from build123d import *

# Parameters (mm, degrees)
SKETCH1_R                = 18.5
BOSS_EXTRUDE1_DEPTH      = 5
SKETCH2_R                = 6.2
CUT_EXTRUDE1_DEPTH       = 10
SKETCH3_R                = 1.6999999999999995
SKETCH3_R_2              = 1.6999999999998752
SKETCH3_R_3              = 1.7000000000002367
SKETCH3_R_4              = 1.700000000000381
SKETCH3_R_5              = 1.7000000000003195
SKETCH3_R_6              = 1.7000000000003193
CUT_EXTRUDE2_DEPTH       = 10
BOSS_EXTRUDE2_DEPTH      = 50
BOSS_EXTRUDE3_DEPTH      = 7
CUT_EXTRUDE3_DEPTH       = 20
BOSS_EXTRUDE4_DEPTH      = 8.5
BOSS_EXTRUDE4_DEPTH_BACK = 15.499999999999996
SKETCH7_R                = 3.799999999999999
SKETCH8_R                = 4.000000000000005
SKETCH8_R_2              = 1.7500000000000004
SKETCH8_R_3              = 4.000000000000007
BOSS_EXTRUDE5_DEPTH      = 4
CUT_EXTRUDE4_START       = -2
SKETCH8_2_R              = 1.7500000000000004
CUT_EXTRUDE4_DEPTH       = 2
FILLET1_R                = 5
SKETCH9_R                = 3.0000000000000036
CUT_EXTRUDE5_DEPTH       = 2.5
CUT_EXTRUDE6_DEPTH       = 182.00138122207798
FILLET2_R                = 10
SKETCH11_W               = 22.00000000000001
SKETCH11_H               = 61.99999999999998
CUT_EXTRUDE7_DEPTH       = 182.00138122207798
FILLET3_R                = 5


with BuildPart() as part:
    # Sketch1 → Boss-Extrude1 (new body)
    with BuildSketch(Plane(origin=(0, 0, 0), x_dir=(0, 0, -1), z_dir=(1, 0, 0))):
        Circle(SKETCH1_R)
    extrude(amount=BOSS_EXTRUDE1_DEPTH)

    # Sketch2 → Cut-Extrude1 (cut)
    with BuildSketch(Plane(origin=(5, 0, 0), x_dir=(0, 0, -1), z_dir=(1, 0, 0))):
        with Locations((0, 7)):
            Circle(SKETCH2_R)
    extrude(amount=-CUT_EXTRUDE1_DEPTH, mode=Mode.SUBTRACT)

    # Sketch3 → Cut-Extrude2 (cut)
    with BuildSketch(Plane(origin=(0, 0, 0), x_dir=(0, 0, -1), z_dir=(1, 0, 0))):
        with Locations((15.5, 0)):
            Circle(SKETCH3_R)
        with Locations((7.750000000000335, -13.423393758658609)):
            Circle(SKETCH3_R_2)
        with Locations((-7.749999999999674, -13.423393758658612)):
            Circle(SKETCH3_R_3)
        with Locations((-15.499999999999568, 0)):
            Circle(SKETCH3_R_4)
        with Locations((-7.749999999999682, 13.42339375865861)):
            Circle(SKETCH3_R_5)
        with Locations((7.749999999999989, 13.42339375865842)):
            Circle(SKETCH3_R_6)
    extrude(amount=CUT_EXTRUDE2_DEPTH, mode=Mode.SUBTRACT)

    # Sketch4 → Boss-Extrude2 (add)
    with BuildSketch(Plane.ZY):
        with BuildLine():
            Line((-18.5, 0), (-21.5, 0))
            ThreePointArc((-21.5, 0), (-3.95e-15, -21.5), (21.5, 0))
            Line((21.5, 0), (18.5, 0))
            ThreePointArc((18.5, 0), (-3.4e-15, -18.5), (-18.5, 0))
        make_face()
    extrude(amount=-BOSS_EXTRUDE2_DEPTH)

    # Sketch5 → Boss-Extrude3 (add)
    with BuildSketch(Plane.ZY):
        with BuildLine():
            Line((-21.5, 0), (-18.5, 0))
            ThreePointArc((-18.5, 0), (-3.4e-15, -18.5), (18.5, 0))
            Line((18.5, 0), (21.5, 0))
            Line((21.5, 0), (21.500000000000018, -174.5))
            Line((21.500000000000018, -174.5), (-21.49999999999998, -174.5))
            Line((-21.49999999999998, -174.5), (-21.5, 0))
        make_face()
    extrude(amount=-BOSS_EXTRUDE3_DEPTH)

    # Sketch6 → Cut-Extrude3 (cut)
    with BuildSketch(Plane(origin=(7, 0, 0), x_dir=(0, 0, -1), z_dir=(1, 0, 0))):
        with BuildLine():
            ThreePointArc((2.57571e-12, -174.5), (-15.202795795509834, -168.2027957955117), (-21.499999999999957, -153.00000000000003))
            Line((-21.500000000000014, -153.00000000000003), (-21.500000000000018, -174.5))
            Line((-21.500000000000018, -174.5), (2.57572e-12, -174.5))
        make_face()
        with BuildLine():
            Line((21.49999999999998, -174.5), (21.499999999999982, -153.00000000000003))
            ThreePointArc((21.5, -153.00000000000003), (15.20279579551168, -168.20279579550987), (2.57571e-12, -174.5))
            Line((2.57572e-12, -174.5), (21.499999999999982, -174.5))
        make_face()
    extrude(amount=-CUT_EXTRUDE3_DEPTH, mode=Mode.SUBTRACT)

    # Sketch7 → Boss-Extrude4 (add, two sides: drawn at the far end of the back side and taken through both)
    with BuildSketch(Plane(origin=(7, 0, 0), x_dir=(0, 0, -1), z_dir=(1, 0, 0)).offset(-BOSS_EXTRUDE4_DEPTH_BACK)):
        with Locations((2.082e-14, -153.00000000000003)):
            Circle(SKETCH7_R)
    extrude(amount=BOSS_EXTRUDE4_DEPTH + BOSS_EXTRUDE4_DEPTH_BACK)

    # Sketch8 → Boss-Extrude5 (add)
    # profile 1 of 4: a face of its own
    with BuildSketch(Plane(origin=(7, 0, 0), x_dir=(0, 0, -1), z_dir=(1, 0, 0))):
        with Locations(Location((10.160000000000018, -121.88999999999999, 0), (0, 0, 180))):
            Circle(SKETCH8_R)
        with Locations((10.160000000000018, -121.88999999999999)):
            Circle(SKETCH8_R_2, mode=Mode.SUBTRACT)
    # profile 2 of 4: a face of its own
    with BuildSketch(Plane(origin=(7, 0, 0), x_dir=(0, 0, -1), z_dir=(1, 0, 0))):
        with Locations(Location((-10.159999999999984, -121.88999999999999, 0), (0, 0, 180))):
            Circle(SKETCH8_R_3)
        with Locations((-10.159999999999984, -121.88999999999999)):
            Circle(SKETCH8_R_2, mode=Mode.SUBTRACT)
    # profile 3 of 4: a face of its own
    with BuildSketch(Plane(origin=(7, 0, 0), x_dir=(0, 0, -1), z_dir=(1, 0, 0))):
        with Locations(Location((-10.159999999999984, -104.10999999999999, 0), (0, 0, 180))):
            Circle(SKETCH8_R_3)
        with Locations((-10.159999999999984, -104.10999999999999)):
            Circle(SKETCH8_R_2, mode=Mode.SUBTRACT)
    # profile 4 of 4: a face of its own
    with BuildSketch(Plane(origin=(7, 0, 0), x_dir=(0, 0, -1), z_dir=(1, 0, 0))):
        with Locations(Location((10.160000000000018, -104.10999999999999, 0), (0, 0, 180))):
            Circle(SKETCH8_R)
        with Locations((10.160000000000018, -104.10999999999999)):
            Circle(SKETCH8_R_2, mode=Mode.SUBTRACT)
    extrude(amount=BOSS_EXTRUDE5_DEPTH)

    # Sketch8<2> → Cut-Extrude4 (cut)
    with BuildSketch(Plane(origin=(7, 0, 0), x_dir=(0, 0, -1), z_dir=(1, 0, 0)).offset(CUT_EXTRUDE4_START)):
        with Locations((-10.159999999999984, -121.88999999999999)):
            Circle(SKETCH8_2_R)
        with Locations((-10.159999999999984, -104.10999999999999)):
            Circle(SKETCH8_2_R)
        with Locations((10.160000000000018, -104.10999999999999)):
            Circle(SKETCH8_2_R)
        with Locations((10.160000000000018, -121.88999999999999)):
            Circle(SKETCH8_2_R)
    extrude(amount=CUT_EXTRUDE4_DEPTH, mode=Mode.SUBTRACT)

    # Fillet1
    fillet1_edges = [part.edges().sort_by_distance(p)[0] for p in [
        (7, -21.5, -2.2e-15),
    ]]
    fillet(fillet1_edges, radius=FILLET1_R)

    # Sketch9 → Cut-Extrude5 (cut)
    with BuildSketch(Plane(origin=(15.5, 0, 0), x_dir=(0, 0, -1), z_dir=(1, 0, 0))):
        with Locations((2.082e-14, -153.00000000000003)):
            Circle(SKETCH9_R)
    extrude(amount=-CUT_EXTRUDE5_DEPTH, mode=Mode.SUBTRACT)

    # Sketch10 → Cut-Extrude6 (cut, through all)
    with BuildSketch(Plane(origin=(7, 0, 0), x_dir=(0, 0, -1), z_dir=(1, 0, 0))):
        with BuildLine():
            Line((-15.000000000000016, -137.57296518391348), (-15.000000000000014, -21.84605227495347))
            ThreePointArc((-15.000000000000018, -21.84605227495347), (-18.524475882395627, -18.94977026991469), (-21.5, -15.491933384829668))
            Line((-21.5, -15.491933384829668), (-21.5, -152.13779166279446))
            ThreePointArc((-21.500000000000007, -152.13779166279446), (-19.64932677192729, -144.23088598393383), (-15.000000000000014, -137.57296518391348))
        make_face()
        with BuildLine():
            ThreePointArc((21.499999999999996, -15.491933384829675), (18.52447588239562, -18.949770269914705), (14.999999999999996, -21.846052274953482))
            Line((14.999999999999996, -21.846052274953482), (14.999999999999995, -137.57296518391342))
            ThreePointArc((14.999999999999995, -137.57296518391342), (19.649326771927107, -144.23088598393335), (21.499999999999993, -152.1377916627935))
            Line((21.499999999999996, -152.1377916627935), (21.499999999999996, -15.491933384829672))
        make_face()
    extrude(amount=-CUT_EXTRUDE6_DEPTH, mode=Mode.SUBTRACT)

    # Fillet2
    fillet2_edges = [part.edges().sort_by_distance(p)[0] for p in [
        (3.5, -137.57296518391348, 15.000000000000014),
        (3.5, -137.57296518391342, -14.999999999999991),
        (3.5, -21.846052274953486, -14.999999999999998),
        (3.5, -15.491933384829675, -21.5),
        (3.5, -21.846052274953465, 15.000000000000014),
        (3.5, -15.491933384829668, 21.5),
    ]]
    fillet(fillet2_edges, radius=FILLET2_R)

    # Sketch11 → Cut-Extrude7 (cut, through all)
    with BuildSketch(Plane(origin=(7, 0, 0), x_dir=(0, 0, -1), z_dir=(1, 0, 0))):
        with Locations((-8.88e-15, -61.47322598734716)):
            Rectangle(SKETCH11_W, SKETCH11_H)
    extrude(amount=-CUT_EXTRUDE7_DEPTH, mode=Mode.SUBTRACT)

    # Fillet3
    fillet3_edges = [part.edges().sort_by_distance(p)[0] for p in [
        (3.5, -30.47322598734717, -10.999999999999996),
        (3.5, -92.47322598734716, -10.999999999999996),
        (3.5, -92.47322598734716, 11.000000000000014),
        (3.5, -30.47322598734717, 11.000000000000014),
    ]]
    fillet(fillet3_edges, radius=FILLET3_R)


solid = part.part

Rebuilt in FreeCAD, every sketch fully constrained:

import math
import FreeCAD as App
import Part
import Sketcher
from FreeCAD import Vector


def edges_at(feature, points):
    """Names of the edges that pass closest to the given points."""
    edges = feature.Shape.Edges
    near = lambda p: min(range(len(edges)), key=lambda i: edges[i].distToShape(Part.Vertex(*p))[0])
    return sorted({f"Edge{near(p) + 1}" for p in points})


def add_polygon(sketch, points):
    """Adds a closed chain of lines whose ends are joined by coincident constraints."""
    first, n = sketch.GeometryCount, len(points)
    for a, b in zip(points, points[1:] + points[:1]):
        sketch.addGeometry(Part.LineSegment(App.Vector(*a, 0), App.Vector(*b, 0)), False)
    for i in range(n):
        sketch.addConstraint(Sketcher.Constraint("Coincident", first + i, 2, first + (i + 1) % n, 1))

doc = App.newDocument("Part")
body = doc.addObject("PartDesign::Body", "Body")

# Sketch on YZ plane
sketch1 = doc.addObject("Sketcher::SketchObject", "Sketch")
body.addObject(sketch1)
sketch1.AttachmentSupport = (doc.YZ_Plane, [""])
sketch1.MapMode = "FlatFace"
sketch1.addGeometry(Part.Circle(Vector(0, 0, 0), Vector(0, 0, 1), 18), False)
sketch1.addConstraint([
    Sketcher.Constraint("Coincident", 0, 3, -1, 1),
    Sketcher.Constraint("Diameter", 0, 37.0),
])
pad1 = doc.addObject("PartDesign::Pad", "Pad")
body.addObject(pad1)
pad1.Profile = sketch1
pad1.Length = 5

# Sketch on YZ plane
sketch2 = doc.addObject("Sketcher::SketchObject", "Sketch001")
body.addObject(sketch2)
sketch2.AttachmentSupport = (doc.YZ_Plane, [""])
sketch2.MapMode = "FlatFace"
sketch2.AttachmentOffset = App.Placement(Vector(0, 0, 5), App.Rotation())
sketch2.addGeometry(Part.Circle(Vector(7, 0, 0), Vector(0, 0, 1), 6), False)
sketch2.addConstraint([
    Sketcher.Constraint("PointOnObject", 0, 3, -1),
    Sketcher.Constraint("Diameter", 0, 12.4),
    Sketcher.Constraint("DistanceX", -1, 1, 0, 3, 7.0),
])
pocket1 = doc.addObject("PartDesign::Pocket", "Pocket")
body.addObject(pocket1)
pocket1.Profile = sketch2
pocket1.Length = 10

# Sketch on YZ plane
sketch3 = doc.addObject("Sketcher::SketchObject", "Sketch002")
body.addObject(sketch3)
sketch3.AttachmentSupport = (doc.YZ_Plane, [""])
sketch3.MapMode = "FlatFace"
sketch3.addGeometry([
    Part.Circle(Vector(0, -15.5, 0), Vector(0, 0, 1), 1.7),  # 0
    Part.Circle(Vector(-13.4, -7.8, 0), Vector(0, 0, 1), 1.7),  # 1
    Part.Circle(Vector(-13.4, 7.8, 0), Vector(0, 0, 1), 1.7),  # 2
    Part.Circle(Vector(0, 15.5, 0), Vector(0, 0, 1), 1.7),  # 3
    Part.Circle(Vector(13.4, 7.8, 0), Vector(0, 0, 1), 1.7),  # 4
    Part.Circle(Vector(13.4, -7.8, 0), Vector(0, 0, 1), 1.7),  # 5
], False)
sketch3.addConstraint([
    Sketcher.Constraint("Equal", 0, 1),
    Sketcher.Constraint("Equal", 1, 2),
    Sketcher.Constraint("Equal", 2, 3),
    Sketcher.Constraint("Equal", 3, 4),
    Sketcher.Constraint("Equal", 4, 5),
    Sketcher.Constraint("Symmetric", 0, 3, 3, 3, -1, 1),
    Sketcher.Constraint("Symmetric", 1, 3, 4, 3, -1, 1),
    Sketcher.Constraint("Symmetric", 2, 3, 5, 3, -1, 1),
    Sketcher.Constraint("Symmetric", 2, 3, 4, 3, -2),
    Sketcher.Constraint("PointOnObject", 0, 3, -2),
    Sketcher.Constraint("Diameter", 0, 3.4),
    Sketcher.Constraint("DistanceY", 0, 3, 3, 3, 31.0),
    Sketcher.Constraint("DistanceY", 1, 3, 2, 3, 15.5),
    Sketcher.Constraint("DistanceX", 1, 3, -1, 1, 13.423394),
])
pocket2 = doc.addObject("PartDesign::Pocket", "Pocket001")
body.addObject(pocket2)
pocket2.Profile = sketch3
pocket2.Length = 10
pocket2.Reversed = True

# Sketch on YZ plane
sketch4 = doc.addObject("Sketcher::SketchObject", "Sketch003")
body.addObject(sketch4)
sketch4.AttachmentSupport = (doc.YZ_Plane, [""])
sketch4.MapMode = "FlatFace"
sketch4.addGeometry([
    Part.LineSegment(Vector(0, -18.5, 0), Vector(0, -21.5, 0)),
    Part.ArcOfCircle(Part.Circle(Vector(0, 0, 0), Vector(0, 0, 1), 21.5), math.radians(90), math.radians(270)),
    Part.LineSegment(Vector(0, 21.5, 0), Vector(0, 18.5, 0)),
    Part.ArcOfCircle(Part.Circle(Vector(0, 0, 0), Vector(0, 0, 1), 18.5), math.radians(90), math.radians(270)),
], False)
sketch4.addConstraint([
    Sketcher.Constraint("Coincident", 0, 2, 1, 2),
    Sketcher.Constraint("Coincident", 1, 1, 2, 1),
    Sketcher.Constraint("Coincident", 2, 2, 3, 1),
    Sketcher.Constraint("Coincident", 3, 2, 0, 1),
    Sketcher.Constraint("Vertical", 0),
    Sketcher.Constraint("Vertical", 2),
    Sketcher.Constraint("Coincident", 1, 3, -1, 1),
    Sketcher.Constraint("Coincident", 3, 3, -1, 1),
    Sketcher.Constraint("PointOnObject", 0, 2, -2),
    Sketcher.Constraint("PointOnObject", 1, 1, -2),
    Sketcher.Constraint("Radius", 1, 21.5),
    Sketcher.Constraint("Radius", 3, 18.5),
])
pad2 = doc.addObject("PartDesign::Pad", "Pad001")
body.addObject(pad2)
pad2.Profile = sketch4
pad2.Length = 50

# Sketch on YZ plane
sketch5 = doc.addObject("Sketcher::SketchObject", "Sketch004")
body.addObject(sketch5)
sketch5.AttachmentSupport = (doc.YZ_Plane, [""])
sketch5.MapMode = "FlatFace"
sketch5.addGeometry([
    Part.LineSegment(Vector(0, -18.5, 0), Vector(0, -21.5, 0)),  # 0
    Part.LineSegment(Vector(0, -21.5, 0), Vector(-174.5, -21.5, 0)),  # 1
    Part.LineSegment(Vector(-174.5, -21.5, 0), Vector(-174.5, 21.5, 0)),  # 2
    Part.LineSegment(Vector(-174.5, 21.5, 0), Vector(0, 21.5, 0)),  # 3
    Part.LineSegment(Vector(0, 21.5, 0), Vector(0, 18.5, 0)),  # 4
    Part.ArcOfCircle(Part.Circle(Vector(0, 0, 0), Vector(0, 0, 1), 18.5), math.radians(90), math.radians(270)),  # 5
], False)
sketch5.addConstraint([
    Sketcher.Constraint("Coincident", 0, 2, 1, 1),
    Sketcher.Constraint("Coincident", 1, 2, 2, 1),
    Sketcher.Constraint("Coincident", 2, 2, 3, 1),
    Sketcher.Constraint("Coincident", 3, 2, 4, 1),
    Sketcher.Constraint("Coincident", 4, 2, 5, 1),
    Sketcher.Constraint("Coincident", 5, 2, 0, 1),
    Sketcher.Constraint("Vertical", 0),
    Sketcher.Constraint("Horizontal", 1),
    Sketcher.Constraint("Vertical", 2),
    Sketcher.Constraint("Horizontal", 3),
    Sketcher.Constraint("Vertical", 4),
    Sketcher.Constraint("Coincident", 5, 3, -1, 1),
    Sketcher.Constraint("Symmetric", 0, 2, 3, 2, -1, 1),
    Sketcher.Constraint("PointOnObject", 0, 2, -2),
    Sketcher.Constraint("Radius", 5, 18.5),
    Sketcher.Constraint("DistanceY", 0, 2, 0, 1, 3.0),
    Sketcher.Constraint("DistanceX", 1, 2, 1, 1, 174.5),
])
pad3 = doc.addObject("PartDesign::Pad", "Pad002")
body.addObject(pad3)
pad3.Profile = sketch5
pad3.Length = 7

# Sketch on YZ plane
sketch6 = doc.addObject("Sketcher::SketchObject", "Sketch005")
body.addObject(sketch6)
sketch6.AttachmentSupport = (doc.YZ_Plane, [""])
sketch6.MapMode = "FlatFace"
sketch6.AttachmentOffset = App.Placement(Vector(0, 0, 7), App.Rotation())
sketch6.addGeometry([
    Part.ArcOfCircle(Part.Circle(Vector(-153, 0, 0), Vector(0, 0, 1), 22), math.radians(90), math.radians(180)),  # 0
    Part.LineSegment(Vector(-153, 22, 0), Vector(-174, 22, 0)),  # 1
    Part.LineSegment(Vector(-174, 22, 0), Vector(-174, 0, 0)),  # 2
    Part.LineSegment(Vector(-174, -22, 0), Vector(-153, -22, 0)),  # 3
    Part.ArcOfCircle(Part.Circle(Vector(-153, 0, 0), Vector(0, 0, 1), 22), math.radians(180), math.radians(270)),  # 4
    Part.LineSegment(Vector(-174, 0, 0), Vector(-174, -22, 0)),  # 5
], False)
sketch6.addConstraint([
    Sketcher.Constraint("Tangent", 0, 1, 1, 1),
    Sketcher.Constraint("Coincident", 1, 2, 2, 1),
    Sketcher.Constraint("Tangent", 2, 2, 0, 2),
    Sketcher.Constraint("Tangent", 3, 2, 4, 2),
    Sketcher.Constraint("Tangent", 4, 1, 5, 1),
    Sketcher.Constraint("Coincident", 5, 2, 3, 1),
    Sketcher.Constraint("Horizontal", 1),
    Sketcher.Constraint("Vertical", 2),
    Sketcher.Constraint("Horizontal", 3),
    Sketcher.Constraint("Vertical", 5),
    Sketcher.Constraint("Coincident", 4, 3, 0, 3),
    Sketcher.Constraint("Equal", 0, 4),
    Sketcher.Constraint("PointOnObject", 0, 3, -1),
    Sketcher.Constraint("Radius", 0, 21.5),
    Sketcher.Constraint("DistanceX", 0, 3, -1, 1, 153.0),
])
pocket3 = doc.addObject("PartDesign::Pocket", "Pocket002")
body.addObject(pocket3)
pocket3.Profile = sketch6
pocket3.Length = 20

# Sketch on YZ plane
sketch7 = doc.addObject("Sketcher::SketchObject", "Sketch006")
body.addObject(sketch7)
sketch7.AttachmentSupport = (doc.YZ_Plane, [""])
sketch7.MapMode = "FlatFace"
sketch7.AttachmentOffset = App.Placement(Vector(0, 0, 7), App.Rotation())
sketch7.addGeometry(Part.Circle(Vector(-153, 0, 0), Vector(0, 0, 1), 3.8), False)
sketch7.addConstraint([
    Sketcher.Constraint("PointOnObject", 0, 3, -1),
    Sketcher.Constraint("Diameter", 0, 7.6),
    Sketcher.Constraint("DistanceX", 0, 3, -1, 1, 153.0),
])
pad4 = doc.addObject("PartDesign::Pad", "Pad003")
body.addObject(pad4)
pad4.Profile = sketch7
pad4.Type = "TwoLengths"
pad4.Length = 8.5
pad4.Length2 = 15.5

# Sketch on YZ plane
sketch8 = doc.addObject("Sketcher::SketchObject", "Sketch007")
body.addObject(sketch8)
sketch8.AttachmentSupport = (doc.YZ_Plane, [""])
sketch8.MapMode = "FlatFace"
sketch8.AttachmentOffset = App.Placement(Vector(0, 0, 7), App.Rotation())
sketch8.addGeometry([
    Part.Circle(Vector(-121.9, -10.2, 0), Vector(0, 0, 1), 4),  # 0
    Part.Circle(Vector(-121.9, -10.2, 0), Vector(0, 0, 1), 1.8),  # 1
    Part.Circle(Vector(-121.9, 10.2, 0), Vector(0, 0, 1), 4),  # 2
    Part.Circle(Vector(-121.9, 10.2, 0), Vector(0, 0, 1), 1.8),  # 3
    Part.Circle(Vector(-104.1, 10.2, 0), Vector(0, 0, 1), 4),  # 4
    Part.Circle(Vector(-104.1, 10.2, 0), Vector(0, 0, 1), 1.8),  # 5
    Part.Circle(Vector(-104.1, -10.2, 0), Vector(0, 0, 1), 4),  # 6
    Part.Circle(Vector(-104.1, -10.2, 0), Vector(0, 0, 1), 1.8),  # 7
], False)
sketch8.addConstraint([
    Sketcher.Constraint("Coincident", 1, 3, 0, 3),
    Sketcher.Constraint("Coincident", 3, 3, 2, 3),
    Sketcher.Constraint("Coincident", 5, 3, 4, 3),
    Sketcher.Constraint("Coincident", 7, 3, 6, 3),
    Sketcher.Constraint("Equal", 0, 2),
    Sketcher.Constraint("Equal", 1, 3),
    Sketcher.Constraint("Equal", 2, 4),
    Sketcher.Constraint("Equal", 3, 5),
    Sketcher.Constraint("Equal", 4, 6),
    Sketcher.Constraint("Equal", 5, 7),
    Sketcher.Constraint("Symmetric", 0, 3, 2, 3, -1),
    Sketcher.Constraint("Symmetric", 4, 3, 6, 3, -1),
    Sketcher.Constraint("Horizontal", 3, 3, 4, 3),
    Sketcher.Constraint("Diameter", 0, 8.0),
    Sketcher.Constraint("Diameter", 1, 3.5),
    Sketcher.Constraint("DistanceX", 0, 3, -1, 1, 121.89),
    Sketcher.Constraint("DistanceY", 0, 3, -1, 1, 10.16),
    Sketcher.Constraint("DistanceX", 4, 3, -1, 1, 104.11),
])
pad5 = doc.addObject("PartDesign::Pad", "Pad004")
body.addObject(pad5)
pad5.Profile = sketch8
pad5.Length = 4

# Sketch on YZ plane
sketch9 = doc.addObject("Sketcher::SketchObject", "Sketch008")
body.addObject(sketch9)
sketch9.AttachmentSupport = (doc.YZ_Plane, [""])
sketch9.MapMode = "FlatFace"
sketch9.AttachmentOffset = App.Placement(Vector(0, 0, 5), App.Rotation())
sketch9.addGeometry([
    Part.Circle(Vector(-121.9, 10.2, 0), Vector(0, 0, 1), 1.8),
    Part.Circle(Vector(-104.1, 10.2, 0), Vector(0, 0, 1), 1.8),
    Part.Circle(Vector(-104.1, -10.2, 0), Vector(0, 0, 1), 1.8),
    Part.Circle(Vector(-121.9, -10.2, 0), Vector(0, 0, 1), 1.8),
], False)
sketch9.addConstraint([
    Sketcher.Constraint("Equal", 0, 1),
    Sketcher.Constraint("Equal", 1, 2),
    Sketcher.Constraint("Equal", 2, 3),
    Sketcher.Constraint("Symmetric", 1, 3, 2, 3, -1),
    Sketcher.Constraint("Symmetric", 0, 3, 3, 3, -1),
    Sketcher.Constraint("Horizontal", 0, 3, 1, 3),
    Sketcher.Constraint("Diameter", 0, 3.5),
    Sketcher.Constraint("DistanceX", 0, 3, -1, 1, 121.89),
    Sketcher.Constraint("DistanceY", -1, 1, 0, 3, 10.16),
    Sketcher.Constraint("DistanceX", 1, 3, -1, 1, 104.11),
])
pocket4 = doc.addObject("PartDesign::Pocket", "Pocket003")
body.addObject(pocket4)
pocket4.Profile = sketch9
pocket4.Length = 2
pocket4.Reversed = True
doc.recompute()

fillet = doc.addObject("PartDesign::Fillet", "Fillet")
body.addObject(fillet)
fillet.Base = (pocket4, edges_at(pocket4, [(7, -21.5, 0)]))
fillet.Radius = 5

# Sketch on YZ plane
sketch10 = doc.addObject("Sketcher::SketchObject", "Sketch009")
body.addObject(sketch10)
sketch10.AttachmentSupport = (doc.YZ_Plane, [""])
sketch10.MapMode = "FlatFace"
sketch10.AttachmentOffset = App.Placement(Vector(0, 0, 15.5), App.Rotation())
sketch10.addGeometry(Part.Circle(Vector(-153, 0, 0), Vector(0, 0, 1), 3), False)
sketch10.addConstraint([
    Sketcher.Constraint("PointOnObject", 0, 3, -1),
    Sketcher.Constraint("Diameter", 0, 6.0),
    Sketcher.Constraint("DistanceX", 0, 3, -1, 1, 153.0),
])
pocket5 = doc.addObject("PartDesign::Pocket", "Pocket004")
body.addObject(pocket5)
pocket5.Profile = sketch10
pocket5.Length = 2.5

# Sketch on YZ plane
sketch11 = doc.addObject("Sketcher::SketchObject", "Sketch010")
body.addObject(sketch11)
sketch11.AttachmentSupport = (doc.YZ_Plane, [""])
sketch11.MapMode = "FlatFace"
sketch11.AttachmentOffset = App.Placement(Vector(0, 0, 7), App.Rotation())
sketch11.addGeometry([
    Part.LineSegment(Vector(-138, 15, 0), Vector(-22, 15, 0)),  # 0
    Part.ArcOfCircle(Part.Circle(Vector(0, 0, 0), Vector(0, 0, 1), 26), math.radians(125.77), math.radians(145.53)),  # 1
    Part.LineSegment(Vector(-15, 22, 0), Vector(-152, 22, 0)),  # 2
    Part.ArcOfCircle(Part.Circle(Vector(-153, 0, 0), Vector(0, 0, 1), 22), math.radians(44), math.radians(88)),  # 3
    Part.ArcOfCircle(Part.Circle(Vector(0, 0, 0), Vector(0, 0, 1), 26), math.radians(-145.53), math.radians(-125.77)),  # 4
    Part.LineSegment(Vector(-22, -15, 0), Vector(-138, -15, 0)),  # 5
    Part.ArcOfCircle(Part.Circle(Vector(-153, 0, 0), Vector(0, 0, 1), 22), math.radians(-88), math.radians(-44)),  # 6
    Part.LineSegment(Vector(-152, -22, 0), Vector(-15, -22, 0)),  # 7
], False)
sketch11.addConstraint([
    Sketcher.Constraint("Coincident", 0, 2, 1, 2),
    Sketcher.Constraint("Coincident", 1, 1, 2, 1),
    Sketcher.Constraint("Coincident", 2, 2, 3, 2),
    Sketcher.Constraint("Coincident", 3, 1, 0, 1),
    Sketcher.Constraint("Coincident", 4, 1, 5, 1),
    Sketcher.Constraint("Coincident", 5, 2, 6, 2),
    Sketcher.Constraint("Coincident", 6, 1, 7, 1),
    Sketcher.Constraint("Coincident", 7, 2, 4, 2),
    Sketcher.Constraint("Horizontal", 0),
    Sketcher.Constraint("Horizontal", 2),
    Sketcher.Constraint("Horizontal", 5),
    Sketcher.Constraint("Horizontal", 7),
    Sketcher.Constraint("Coincident", 1, 3, -1, 1),
    Sketcher.Constraint("Coincident", 4, 3, -1, 1),
    Sketcher.Constraint("Coincident", 6, 3, 3, 3),
    Sketcher.Constraint("Equal", 1, 4),
    Sketcher.Constraint("Equal", 3, 6),
    Sketcher.Constraint("Symmetric", 3, 1, 5, 2, -1),
    Sketcher.Constraint("Vertical", 2, 2, 6, 1),
    Sketcher.Constraint("Radius", 1, 26.5),
    Sketcher.Constraint("DistanceX", 3, 3, -1, 1, 153.0),
    Sketcher.Constraint("DistanceY", -1, 1, 0, 2, 15.0),
    Sketcher.Constraint("DistanceY", 6, 1, 2, 2, 43.0),
    Sketcher.Constraint("Radius", 3, 21.517282),
])
pocket6 = doc.addObject("PartDesign::Pocket", "Pocket005")
body.addObject(pocket6)
pocket6.Profile = sketch11
pocket6.Type = "ThroughAll"
doc.recompute()

fillet2 = doc.addObject("PartDesign::Fillet", "Fillet001")
body.addObject(fillet2)
fillet2.Base = (pocket6, edges_at(pocket6, [
    (3.5, -137.573, 15),
    (3.5, -137.573, -15),
    (3.5, -21.846, -15),
    (3.5, -15.492, -21.5),
    (3.5, -21.846, 15),
    (3.5, -15.492, 21.5),
]))
fillet2.Radius = 10

# Sketch on YZ plane
sketch12 = doc.addObject("Sketcher::SketchObject", "Sketch011")
body.addObject(sketch12)
sketch12.AttachmentSupport = (doc.YZ_Plane, [""])
sketch12.MapMode = "FlatFace"
sketch12.AttachmentOffset = App.Placement(Vector(0, 0, 7), App.Rotation())
add_polygon(sketch12, [(-30, 11), (-92, 11), (-92, -11), (-30, -11)])  # lines 0-3
sketch12.addConstraint([
    Sketcher.Constraint("Horizontal", 0),
    Sketcher.Constraint("Vertical", 1),
    Sketcher.Constraint("Horizontal", 2),
    Sketcher.Constraint("Vertical", 3),
    Sketcher.Constraint("DistanceX", 0, 2, 0, 1, 62.0),
    Sketcher.Constraint("DistanceY", 1, 2, 1, 1, 22.0),
    Sketcher.Constraint("DistanceY", -1, 1, 0, 2, 11.0),
    Sketcher.Constraint("DistanceX", 0, 2, -1, 1, 92.473226),
])
pocket7 = doc.addObject("PartDesign::Pocket", "Pocket006")
body.addObject(pocket7)
pocket7.Profile = sketch12
pocket7.Type = "ThroughAll"
doc.recompute()

fillet3 = doc.addObject("PartDesign::Fillet", "Fillet002")
body.addObject(fillet3)
fillet3.Base = (pocket7, edges_at(pocket7, [
    (3.5, -30.473, -11),
    (3.5, -92.473, -11),
    (3.5, -92.473, 11),
    (3.5, -30.473, 11),
]))
fillet3.Radius = 5

doc.recompute()
